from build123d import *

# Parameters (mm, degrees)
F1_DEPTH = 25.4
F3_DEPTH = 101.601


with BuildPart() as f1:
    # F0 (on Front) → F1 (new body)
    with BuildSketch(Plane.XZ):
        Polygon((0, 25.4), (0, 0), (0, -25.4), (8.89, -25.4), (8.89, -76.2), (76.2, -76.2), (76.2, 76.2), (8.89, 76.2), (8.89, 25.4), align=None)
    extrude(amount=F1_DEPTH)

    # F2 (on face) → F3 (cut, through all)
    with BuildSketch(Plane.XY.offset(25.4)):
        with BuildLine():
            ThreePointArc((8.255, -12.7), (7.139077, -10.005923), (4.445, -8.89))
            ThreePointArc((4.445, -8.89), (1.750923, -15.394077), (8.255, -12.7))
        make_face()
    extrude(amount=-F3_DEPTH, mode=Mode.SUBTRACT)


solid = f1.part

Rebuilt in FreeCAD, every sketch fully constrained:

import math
import FreeCAD as App
import Part
import Sketcher
Q = App.Units.Quantity


def add_polygon(sketch, points):
    """Adds a closed chain of lines whose ends are joined by coincident constraints."""
    first, n = sketch.GeometryCount, len(points)
    for a, b in zip(points, points[1:] + points[:1]):
        sketch.addGeometry(Part.LineSegment(App.Vector(*a, 0), App.Vector(*b, 0)), False)
    for i in range(n):
        sketch.addConstraint(Sketcher.Constraint("Coincident", first + i, 2, first + (i + 1) % n, 1))

doc = App.newDocument("Part")
body = doc.addObject("PartDesign::Body", "Body")

sketch1 = body.newObject("Sketcher::SketchObject", "Sketch")
sketch1.AttachmentSupport = (doc.getObject("XZ_Plane"), [""])
sketch1.MapMode = "FlatFace"
add_polygon(sketch1, [(0, 25), (0, -25), (9, -25), (9, -76), (76, -76), (76, 76), (9, 76), (9, 25)])
sketch1.addConstraint([
    Sketcher.Constraint("Vertical", 0),
    Sketcher.Constraint("Horizontal", 1),
    Sketcher.Constraint("Vertical", 2),
    Sketcher.Constraint("Horizontal", 3),
    Sketcher.Constraint("Vertical", 4),
    Sketcher.Constraint("Horizontal", 5),
    Sketcher.Constraint("Vertical", 6),
    Sketcher.Constraint("Horizontal", 7),
    Sketcher.Constraint("Symmetric", 0, 2, 7, 2, -1, 1),
    Sketcher.Constraint("Symmetric", 2, 2, 5, 2, -1),
    Sketcher.Constraint("Equal", 0, 2),
    Sketcher.Constraint("DistanceY", 0, 2, 0, 1, Q("2 in")),
    Sketcher.Constraint("DistanceX", -1, 1, 3, 2, Q("3 in")),
    Sketcher.Constraint("DistanceX", 1, 1, 1, 2, Q("0.35 in")),
])
pad1 = body.newObject("PartDesign::Pad", "Pad")
pad1.Profile = sketch1
pad1.Length = Q("1 in")

sketch2 = body.newObject("Sketcher::SketchObject", "Sketch001")
sketch2.AttachmentSupport = (doc.getObject("XY_Plane"), [""])
sketch2.MapMode = "FlatFace"
sketch2.AttachmentOffset = App.Placement(App.Vector(0, 0, 1 * 25.4), App.Rotation())
sketch2.addGeometry([
    Part.ArcOfCircle(Part.Circle(App.Vector(4.4, -12.7, 0), App.Vector(0, 0, 1), 3.8), math.radians(0), math.radians(90)),
    Part.ArcOfCircle(Part.Circle(App.Vector(4.4, -12.7, 0), App.Vector(0, 0, 1), 3.8), math.radians(90), math.radians(360)),
], False)
sketch2.addConstraint([
    Sketcher.Constraint("Tangent", 0, 1, 1, 2),
    Sketcher.Constraint("Coincident", 1, 1, 0, 2),
    Sketcher.Constraint("Horizontal", 1, 3, 0, 1),
    Sketcher.Constraint("Vertical", 0, 3, 1, 1),
    Sketcher.Constraint("Radius", 0, Q("0.15 in")),
    Sketcher.Constraint("DistanceY", 0, 3, -1, 1, Q("0.5 in")),
    Sketcher.Constraint("DistanceX", -1, 1, 0, 3, Q("0.175 in")),
])
pocket1 = body.newObject("PartDesign::Pocket", "Pocket")
pocket1.Profile = sketch2
pocket1.Type = "ThroughAll"

doc.recompute()
